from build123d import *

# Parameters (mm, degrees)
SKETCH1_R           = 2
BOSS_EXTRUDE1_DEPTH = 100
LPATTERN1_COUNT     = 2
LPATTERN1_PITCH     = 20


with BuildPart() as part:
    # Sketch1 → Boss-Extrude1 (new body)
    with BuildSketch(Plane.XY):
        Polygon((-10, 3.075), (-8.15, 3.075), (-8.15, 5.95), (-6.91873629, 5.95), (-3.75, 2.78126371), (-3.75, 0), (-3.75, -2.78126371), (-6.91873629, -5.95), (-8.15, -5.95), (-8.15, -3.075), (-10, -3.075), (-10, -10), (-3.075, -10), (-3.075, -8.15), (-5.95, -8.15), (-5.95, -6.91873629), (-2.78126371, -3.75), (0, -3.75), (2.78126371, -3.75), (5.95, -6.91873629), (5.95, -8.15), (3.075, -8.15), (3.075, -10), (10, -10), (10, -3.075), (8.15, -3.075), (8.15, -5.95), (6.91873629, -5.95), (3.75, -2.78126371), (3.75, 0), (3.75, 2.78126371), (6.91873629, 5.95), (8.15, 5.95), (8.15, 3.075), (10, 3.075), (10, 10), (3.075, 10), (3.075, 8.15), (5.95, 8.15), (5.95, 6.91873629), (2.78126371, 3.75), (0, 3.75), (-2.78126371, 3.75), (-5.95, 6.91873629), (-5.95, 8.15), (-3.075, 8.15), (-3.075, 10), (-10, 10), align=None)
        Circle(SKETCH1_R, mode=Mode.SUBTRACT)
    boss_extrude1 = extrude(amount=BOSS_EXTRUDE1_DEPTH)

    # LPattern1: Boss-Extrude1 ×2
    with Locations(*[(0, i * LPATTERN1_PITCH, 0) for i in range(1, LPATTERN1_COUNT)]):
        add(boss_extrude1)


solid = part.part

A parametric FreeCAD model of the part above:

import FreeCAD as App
import Part
import Sketcher
Q = App.Units.Quantity


def add_polygon(sketch, points):
    """Adds a closed chain of lines whose ends are joined by coincident constraints."""
    first, n = sketch.GeometryCount, len(points)
    for a, b in zip(points, points[1:] + points[:1]):
        sketch.addGeometry(Part.LineSegment(App.Vector(*a, 0), App.Vector(*b, 0)), False)
    for i in range(n):
        sketch.addConstraint(Sketcher.Constraint("Coincident", first + i, 2, first + (i + 1) % n, 1))

doc = App.newDocument("Part")
body = doc.addObject("PartDesign::Body", "Body")

sketch1 = doc.addObject("Sketcher::SketchObject", "Sketch")
body.addObject(sketch1)
sketch1.AttachmentSupport = (doc.XY_Plane, [""])
sketch1.MapMode = "FlatFace"
add_polygon(sketch1, [(-10, 3.075), (-8.15, 3.075), (-8.15, 5.95), (-6.918736, 5.95), (-3.75, 2.781264), (-3.75, -2.781264), (-6.918736, -5.95), (-8.15, -5.95), (-8.15, -3.075), (-10, -3.075), (-10, -10), (-3.075, -10), (-3.075, -8.15), (-5.95, -8.15), (-5.95, -6.918736), (-2.781264, -3.75), (2.781264, -3.75), (5.95, -6.918736), (5.95, -8.15), (3.075, -8.15), (3.075, -10), (10, -10), (10, -3.075), (8.15, -3.075), (8.15, -5.95), (6.918736, -5.95), (3.75, -2.781264), (3.75, 2.781264), (6.918736, 5.95), (8.15, 5.95), (8.15, 3.075), (10, 3.075), (10, 10), (3.075, 10), (3.075, 8.15), (5.95, 8.15), (5.95, 6.918736), (2.781264, 3.75), (-2.781264, 3.75), (-5.95, 6.918736), (-5.95, 8.15), (-3.075, 8.15), (-3.075, 10), (-10, 10)])
sketch1.addGeometry(Part.Circle(App.Vector(0, 0, 0), App.Vector(0, 0, 1), 2), False)
sketch1.addConstraint([
    Sketcher.Constraint("Horizontal", 0),
    Sketcher.Constraint("Vertical", 1),
    Sketcher.Constraint("Horizontal", 2),
    Sketcher.Constraint("Vertical", 4),
    Sketcher.Constraint("Horizontal", 6),
    Sketcher.Constraint("Vertical", 7),
    Sketcher.Constraint("Horizontal", 8),
    Sketcher.Constraint("Vertical", 9),
    Sketcher.Constraint("Horizontal", 10),
    Sketcher.Constraint("Vertical", 11),
    Sketcher.Constraint("Horizontal", 12),
    Sketcher.Constraint("Vertical", 13),
    Sketcher.Constraint("Horizontal", 15),
    Sketcher.Constraint("Vertical", 17),
    Sketcher.Constraint("Horizontal", 18),
    Sketcher.Constraint("Vertical", 19),
    Sketcher.Constraint("Horizontal", 20),
    Sketcher.Constraint("Vertical", 21),
    Sketcher.Constraint("Horizontal", 22),
    Sketcher.Constraint("Vertical", 23),
    Sketcher.Constraint("Horizontal", 24),
    Sketcher.Constraint("Vertical", 26),
    Sketcher.Constraint("Horizontal", 28),
    Sketcher.Constraint("Vertical", 29),
    Sketcher.Constraint("Horizontal", 30),
    Sketcher.Constraint("Vertical", 31),
    Sketcher.Constraint("Horizontal", 32),
    Sketcher.Constraint("Vertical", 33),
    Sketcher.Constraint("Horizontal", 34),
    Sketcher.Constraint("Vertical", 35),
    Sketcher.Constraint("Horizontal", 37),
    Sketcher.Constraint("Vertical", 39),
    Sketcher.Constraint("Horizontal", 40),
    Sketcher.Constraint("Vertical", 41),
    Sketcher.Constraint("Horizontal", 42),
    Sketcher.Constraint("Vertical", 43),
    Sketcher.Constraint("Coincident", 44, 3, -1, 1),
    Sketcher.Constraint("Symmetric", 0, 2, 22, 2, -1, 1),
    Sketcher.Constraint("Symmetric", 2, 2, 24, 2, -1, 1),
    Sketcher.Constraint("Symmetric", 3, 2, 25, 2, -1, 1),
    Sketcher.Constraint("Symmetric", 5, 2, 27, 2, -1, 1),
    Sketcher.Constraint("Symmetric", 7, 2, 29, 2, -1, 1),
    Sketcher.Constraint("Symmetric", 9, 2, 31, 2, -1, 1),
    Sketcher.Constraint("Symmetric", 11, 2, 33, 2, -1, 1),
    Sketcher.Constraint("Symmetric", 13, 2, 35, 2, -1, 1),
    Sketcher.Constraint("Symmetric", 14, 2, 36, 2, -1, 1),
    Sketcher.Constraint("Symmetric", 16, 2, 38, 2, -1, 1),
    Sketcher.Constraint("Symmetric", 18, 2, 40, 2, -1, 1),
    Sketcher.Constraint("Symmetric", 20, 2, 42, 2, -1, 1),
    Sketcher.Constraint("Symmetric", 13, 2, 16, 2, -2),
    Sketcher.Constraint("Symmetric", 11, 2, 18, 2, -2),
    Sketcher.Constraint("Symmetric", 9, 2, 20, 2, -2),
    Sketcher.Constraint("Symmetric", 7, 2, 22, 2, -2),
    Sketcher.Constraint("Symmetric", 5, 2, 24, 2, -2),
    Sketcher.Constraint("Perpendicular", 3, 5),
    Sketcher.Constraint("Parallel", 5, 14),
    Sketcher.Constraint("Perpendicular", 14, 16),
    Sketcher.Constraint("Perpendicular", 25, 27),
    Sketcher.Constraint("Perpendicular", 36, 38),
    Sketcher.Constraint("Horizontal", 4, 2, 25, 2),
    Sketcher.Constraint("Equal", 40, 1),
    Sketcher.Constraint("Equal", 37, 4),
    Sketcher.Constraint("Equal", 42, 9),
    Sketcher.Constraint("Equal", 30, 11),
    Sketcher.Constraint("Equal", 28, 13),
    Sketcher.Constraint("Equal", 5, 14),
    Sketcher.Constraint("Diameter", 44, Q("4 mm")),
    Sketcher.Constraint("DistanceX", 8, 2, -1, 1, Q("10 mm")),
    Sketcher.Constraint("DistanceX", 0, 1, 0, 2, Q("1.85 mm")),
    Sketcher.Constraint("DistanceX", 0, 2, 3, 2, Q("4.4 mm")),
    Sketcher.Constraint("DistanceY", 5, 2, 2, 2, Q("11.9 mm")),
    Sketcher.Constraint("DistanceX", 10, 1, 10, 2, Q("6.925 mm")),
    Sketcher.Constraint("Distance", 3, Q("4.48127 mm")),
])
pad1 = doc.addObject("PartDesign::Pad", "Pad")
body.addObject(pad1)
pad1.Profile = sketch1
pad1.Length = 100
doc.recompute()

linearpattern = doc.addObject("PartDesign::LinearPattern", "LinearPattern")
body.addObject(linearpattern)
linearpattern.Originals = [pad1]
linearpattern.Direction = (doc.Y_Axis, [""])
linearpattern.Mode = "offset"
linearpattern.Offset = 20
linearpattern.Occurrences = 2
body.Tip = linearpattern

doc.recompute()
